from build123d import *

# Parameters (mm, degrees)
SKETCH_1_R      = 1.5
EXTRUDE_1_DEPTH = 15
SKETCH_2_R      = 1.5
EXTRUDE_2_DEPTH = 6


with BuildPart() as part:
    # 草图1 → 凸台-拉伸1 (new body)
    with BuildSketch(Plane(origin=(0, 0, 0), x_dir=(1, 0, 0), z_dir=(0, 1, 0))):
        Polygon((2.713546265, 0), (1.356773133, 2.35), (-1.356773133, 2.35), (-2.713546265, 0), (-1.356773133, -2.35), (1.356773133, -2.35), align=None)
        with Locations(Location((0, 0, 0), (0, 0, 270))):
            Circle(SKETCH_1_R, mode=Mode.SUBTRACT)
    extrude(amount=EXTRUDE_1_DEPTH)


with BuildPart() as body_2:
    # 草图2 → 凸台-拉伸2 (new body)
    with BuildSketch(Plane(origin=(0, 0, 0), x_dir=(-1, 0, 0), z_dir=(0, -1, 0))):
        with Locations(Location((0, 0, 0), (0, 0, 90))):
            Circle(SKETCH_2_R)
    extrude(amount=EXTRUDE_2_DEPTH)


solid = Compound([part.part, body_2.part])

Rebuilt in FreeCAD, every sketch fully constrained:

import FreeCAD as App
import Part
import Sketcher
Q = App.Units.Quantity


def add_polygon(sketch, points):
    """Adds a closed chain of lines whose ends are joined by coincident constraints."""
    first, n = sketch.GeometryCount, len(points)
    for a, b in zip(points, points[1:] + points[:1]):
        sketch.addGeometry(Part.LineSegment(App.Vector(*a, 0), App.Vector(*b, 0)), False)
    for i in range(n):
        sketch.addConstraint(Sketcher.Constraint("Coincident", first + i, 2, first + (i + 1) % n, 1))

doc = App.newDocument("Part")
body = doc.addObject("PartDesign::Body", "Body")

sketch1 = body.newObject("Sketcher::SketchObject", "Sketch")
sketch1.AttachmentSupport = (doc.getObject("XZ_Plane"), [""])
sketch1.MapMode = "FlatFace"
add_polygon(sketch1, [(2.7, 0), (1.4, -2.4), (-1.4, -2.4), (-2.7, 0), (-1.4, 2.4), (1.4, 2.4)])
sketch1.addGeometry(Part.Circle(App.Vector(0, 0, 0), App.Vector(0, 0, 1), 1.5), False)
sketch1.addConstraint([
    Sketcher.Constraint("Horizontal", 1),
    Sketcher.Constraint("Horizontal", 4),
    Sketcher.Constraint("Coincident", 6, 3, -1, 1),
    Sketcher.Constraint("Symmetric", 0, 2, 3, 2, -1, 1),
    Sketcher.Constraint("Symmetric", 2, 2, 5, 2, -1, 1),
    Sketcher.Constraint("PointOnObject", 2, 2, -1),
    Sketcher.Constraint("Parallel", 2, 5),
    Sketcher.Constraint("Vertical", 1, 2, 3, 2),
    Sketcher.Constraint("Diameter", 6, Q("3 mm")),
    Sketcher.Constraint("Angle", 0, Q("-120 deg")),
    Sketcher.Constraint("DistanceY", 1, 2, 3, 2, Q("4.7 mm")),
    Sketcher.Constraint("DistanceX", 1, 2, 1, 1, Q("2.713546 mm")),
])
pad1 = body.newObject("PartDesign::Pad", "Pad")
pad1.Profile = sketch1
pad1.Length = 15
pad1.Reversed = True
body2 = doc.addObject("PartDesign::Body", "Body001")

sketch2 = body2.newObject("Sketcher::SketchObject", "Sketch001")
sketch2.AttachmentSupport = (doc.getObject("XZ_Plane001"), [""])
sketch2.MapMode = "FlatFace"
sketch2.addGeometry(Part.Circle(App.Vector(0, 0, 0), App.Vector(0, 0, 1), 1.5), False)
sketch2.addConstraint([
    Sketcher.Constraint("Coincident", 0, 3, -1, 1),
    Sketcher.Constraint("Diameter", 0, Q("3 mm")),
])
pad2 = body2.newObject("PartDesign::Pad", "Pad001")
pad2.Profile = sketch2
pad2.Length = 6

doc.recompute()
